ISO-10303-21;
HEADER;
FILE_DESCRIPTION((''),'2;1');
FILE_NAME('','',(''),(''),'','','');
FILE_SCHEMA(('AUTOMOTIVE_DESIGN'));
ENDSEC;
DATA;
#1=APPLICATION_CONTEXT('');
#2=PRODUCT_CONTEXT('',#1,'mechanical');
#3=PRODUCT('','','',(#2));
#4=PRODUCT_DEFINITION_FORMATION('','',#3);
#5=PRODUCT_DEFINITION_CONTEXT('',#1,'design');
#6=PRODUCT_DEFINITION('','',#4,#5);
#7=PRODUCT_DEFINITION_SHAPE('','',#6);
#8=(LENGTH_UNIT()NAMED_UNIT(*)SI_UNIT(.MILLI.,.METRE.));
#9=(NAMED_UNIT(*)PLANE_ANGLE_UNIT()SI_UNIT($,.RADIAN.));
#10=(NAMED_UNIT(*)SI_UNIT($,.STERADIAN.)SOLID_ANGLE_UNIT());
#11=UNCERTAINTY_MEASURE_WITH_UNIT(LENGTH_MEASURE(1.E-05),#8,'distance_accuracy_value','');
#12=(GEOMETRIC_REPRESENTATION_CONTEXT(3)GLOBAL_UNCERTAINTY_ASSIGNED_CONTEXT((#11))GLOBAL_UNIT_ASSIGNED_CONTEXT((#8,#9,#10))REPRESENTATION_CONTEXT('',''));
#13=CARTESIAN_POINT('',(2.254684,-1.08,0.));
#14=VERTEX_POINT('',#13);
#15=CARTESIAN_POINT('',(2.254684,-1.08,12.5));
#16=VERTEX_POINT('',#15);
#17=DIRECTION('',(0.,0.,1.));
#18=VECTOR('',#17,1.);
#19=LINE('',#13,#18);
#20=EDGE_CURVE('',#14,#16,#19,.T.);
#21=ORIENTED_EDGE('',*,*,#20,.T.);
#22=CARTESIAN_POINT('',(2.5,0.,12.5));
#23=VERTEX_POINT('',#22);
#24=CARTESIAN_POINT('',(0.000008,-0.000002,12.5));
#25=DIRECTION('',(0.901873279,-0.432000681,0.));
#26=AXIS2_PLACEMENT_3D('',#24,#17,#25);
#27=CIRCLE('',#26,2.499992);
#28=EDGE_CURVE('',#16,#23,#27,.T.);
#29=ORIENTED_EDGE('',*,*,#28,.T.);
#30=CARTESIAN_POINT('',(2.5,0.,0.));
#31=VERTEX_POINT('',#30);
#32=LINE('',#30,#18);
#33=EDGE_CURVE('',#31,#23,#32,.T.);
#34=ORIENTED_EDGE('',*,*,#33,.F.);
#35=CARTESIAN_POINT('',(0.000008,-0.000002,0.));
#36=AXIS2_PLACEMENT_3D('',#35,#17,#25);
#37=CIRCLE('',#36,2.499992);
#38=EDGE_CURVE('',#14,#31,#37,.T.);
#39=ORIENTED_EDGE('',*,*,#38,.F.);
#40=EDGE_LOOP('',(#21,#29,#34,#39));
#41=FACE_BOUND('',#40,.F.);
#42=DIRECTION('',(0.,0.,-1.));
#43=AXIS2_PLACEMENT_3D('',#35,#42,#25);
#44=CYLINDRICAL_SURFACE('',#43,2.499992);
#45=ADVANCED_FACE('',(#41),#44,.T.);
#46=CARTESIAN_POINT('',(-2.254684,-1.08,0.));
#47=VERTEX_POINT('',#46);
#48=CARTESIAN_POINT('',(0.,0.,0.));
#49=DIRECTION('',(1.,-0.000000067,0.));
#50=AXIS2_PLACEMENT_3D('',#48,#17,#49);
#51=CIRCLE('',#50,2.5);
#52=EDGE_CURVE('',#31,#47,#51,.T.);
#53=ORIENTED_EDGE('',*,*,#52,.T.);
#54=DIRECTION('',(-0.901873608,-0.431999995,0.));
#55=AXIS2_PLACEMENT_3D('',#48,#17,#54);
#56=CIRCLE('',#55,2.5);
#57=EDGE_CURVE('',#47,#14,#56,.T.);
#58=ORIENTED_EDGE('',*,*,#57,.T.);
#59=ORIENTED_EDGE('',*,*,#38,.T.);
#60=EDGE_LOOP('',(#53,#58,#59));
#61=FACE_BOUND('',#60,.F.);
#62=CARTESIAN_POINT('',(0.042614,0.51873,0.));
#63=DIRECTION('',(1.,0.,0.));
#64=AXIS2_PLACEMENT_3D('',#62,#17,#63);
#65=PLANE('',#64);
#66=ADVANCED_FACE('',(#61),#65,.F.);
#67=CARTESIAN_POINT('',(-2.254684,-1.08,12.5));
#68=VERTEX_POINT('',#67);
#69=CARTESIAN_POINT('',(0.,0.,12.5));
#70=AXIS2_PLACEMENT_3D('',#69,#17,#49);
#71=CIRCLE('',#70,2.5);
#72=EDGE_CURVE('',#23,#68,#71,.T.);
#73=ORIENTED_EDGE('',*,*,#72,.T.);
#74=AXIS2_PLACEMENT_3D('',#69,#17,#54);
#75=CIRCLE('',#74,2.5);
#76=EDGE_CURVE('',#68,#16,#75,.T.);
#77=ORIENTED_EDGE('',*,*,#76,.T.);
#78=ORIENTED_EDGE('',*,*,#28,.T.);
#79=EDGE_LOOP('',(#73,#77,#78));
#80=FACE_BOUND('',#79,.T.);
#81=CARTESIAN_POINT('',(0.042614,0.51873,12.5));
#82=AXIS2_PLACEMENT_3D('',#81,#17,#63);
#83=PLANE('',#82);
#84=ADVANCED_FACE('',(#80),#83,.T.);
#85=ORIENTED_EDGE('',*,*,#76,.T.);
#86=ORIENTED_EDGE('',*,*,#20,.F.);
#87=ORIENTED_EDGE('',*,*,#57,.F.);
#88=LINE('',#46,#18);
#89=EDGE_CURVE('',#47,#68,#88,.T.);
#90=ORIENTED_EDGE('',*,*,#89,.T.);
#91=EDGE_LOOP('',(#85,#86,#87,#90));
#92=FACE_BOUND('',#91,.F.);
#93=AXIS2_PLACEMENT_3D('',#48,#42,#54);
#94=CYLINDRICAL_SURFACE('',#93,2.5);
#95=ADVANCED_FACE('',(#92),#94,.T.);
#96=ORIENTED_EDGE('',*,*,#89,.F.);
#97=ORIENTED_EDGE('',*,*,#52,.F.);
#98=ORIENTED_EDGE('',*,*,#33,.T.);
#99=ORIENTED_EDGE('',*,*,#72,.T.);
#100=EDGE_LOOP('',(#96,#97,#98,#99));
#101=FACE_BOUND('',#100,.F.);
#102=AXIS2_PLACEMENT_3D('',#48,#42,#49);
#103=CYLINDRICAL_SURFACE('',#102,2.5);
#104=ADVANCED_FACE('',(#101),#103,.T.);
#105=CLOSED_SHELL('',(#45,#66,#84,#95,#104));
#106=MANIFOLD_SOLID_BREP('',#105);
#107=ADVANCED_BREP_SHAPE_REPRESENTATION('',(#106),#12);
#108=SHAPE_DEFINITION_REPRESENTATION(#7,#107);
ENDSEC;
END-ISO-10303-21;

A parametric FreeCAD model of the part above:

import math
import FreeCAD as App
import Part
import Sketcher

V = App.Vector

doc = App.newDocument("Part")
body = doc.addObject("PartDesign::Body", "Body")

sketch1 = body.newObject("Sketcher::SketchObject", "Sketch")
sketch1.AttachmentSupport = (doc.getObject("XY_Plane"), [""])
sketch1.MapMode = "FlatFace"
sketch1.addGeometry([
    Part.ArcOfCircle(Part.Circle(V(0, 0, 0), V(0, 0, 1), 2.5), math.radians(-26), math.radians(0)),
    Part.ArcOfCircle(Part.Circle(V(0, 0, 0), V(0, 0, 1), 2.5), math.radians(0), math.radians(206)),
    Part.ArcOfCircle(Part.Circle(V(0, 0, 0), V(0, 0, 1), 2.5), math.radians(-154), math.radians(-26)),
], False)
sketch1.addConstraint([
    Sketcher.Constraint("Tangent", 0, 2, 1, 1),
    Sketcher.Constraint("Tangent", 1, 2, 2, 1),
    Sketcher.Constraint("Tangent", 2, 2, 0, 1),
    Sketcher.Constraint("Coincident", 0, 3, -1, 1),
    Sketcher.Constraint("PointOnObject", 0, 2, -1),
    Sketcher.Constraint("Horizontal", 1, 2, 2, 2),
    Sketcher.Constraint("Radius", 1, 2.5),
    Sketcher.Constraint("DistanceY", 1, 2, -1, 1, 1.08),
])
pad1 = body.newObject("PartDesign::Pad", "Pad")
pad1.Profile = sketch1
pad1.Length = 12.5

doc.recompute()
